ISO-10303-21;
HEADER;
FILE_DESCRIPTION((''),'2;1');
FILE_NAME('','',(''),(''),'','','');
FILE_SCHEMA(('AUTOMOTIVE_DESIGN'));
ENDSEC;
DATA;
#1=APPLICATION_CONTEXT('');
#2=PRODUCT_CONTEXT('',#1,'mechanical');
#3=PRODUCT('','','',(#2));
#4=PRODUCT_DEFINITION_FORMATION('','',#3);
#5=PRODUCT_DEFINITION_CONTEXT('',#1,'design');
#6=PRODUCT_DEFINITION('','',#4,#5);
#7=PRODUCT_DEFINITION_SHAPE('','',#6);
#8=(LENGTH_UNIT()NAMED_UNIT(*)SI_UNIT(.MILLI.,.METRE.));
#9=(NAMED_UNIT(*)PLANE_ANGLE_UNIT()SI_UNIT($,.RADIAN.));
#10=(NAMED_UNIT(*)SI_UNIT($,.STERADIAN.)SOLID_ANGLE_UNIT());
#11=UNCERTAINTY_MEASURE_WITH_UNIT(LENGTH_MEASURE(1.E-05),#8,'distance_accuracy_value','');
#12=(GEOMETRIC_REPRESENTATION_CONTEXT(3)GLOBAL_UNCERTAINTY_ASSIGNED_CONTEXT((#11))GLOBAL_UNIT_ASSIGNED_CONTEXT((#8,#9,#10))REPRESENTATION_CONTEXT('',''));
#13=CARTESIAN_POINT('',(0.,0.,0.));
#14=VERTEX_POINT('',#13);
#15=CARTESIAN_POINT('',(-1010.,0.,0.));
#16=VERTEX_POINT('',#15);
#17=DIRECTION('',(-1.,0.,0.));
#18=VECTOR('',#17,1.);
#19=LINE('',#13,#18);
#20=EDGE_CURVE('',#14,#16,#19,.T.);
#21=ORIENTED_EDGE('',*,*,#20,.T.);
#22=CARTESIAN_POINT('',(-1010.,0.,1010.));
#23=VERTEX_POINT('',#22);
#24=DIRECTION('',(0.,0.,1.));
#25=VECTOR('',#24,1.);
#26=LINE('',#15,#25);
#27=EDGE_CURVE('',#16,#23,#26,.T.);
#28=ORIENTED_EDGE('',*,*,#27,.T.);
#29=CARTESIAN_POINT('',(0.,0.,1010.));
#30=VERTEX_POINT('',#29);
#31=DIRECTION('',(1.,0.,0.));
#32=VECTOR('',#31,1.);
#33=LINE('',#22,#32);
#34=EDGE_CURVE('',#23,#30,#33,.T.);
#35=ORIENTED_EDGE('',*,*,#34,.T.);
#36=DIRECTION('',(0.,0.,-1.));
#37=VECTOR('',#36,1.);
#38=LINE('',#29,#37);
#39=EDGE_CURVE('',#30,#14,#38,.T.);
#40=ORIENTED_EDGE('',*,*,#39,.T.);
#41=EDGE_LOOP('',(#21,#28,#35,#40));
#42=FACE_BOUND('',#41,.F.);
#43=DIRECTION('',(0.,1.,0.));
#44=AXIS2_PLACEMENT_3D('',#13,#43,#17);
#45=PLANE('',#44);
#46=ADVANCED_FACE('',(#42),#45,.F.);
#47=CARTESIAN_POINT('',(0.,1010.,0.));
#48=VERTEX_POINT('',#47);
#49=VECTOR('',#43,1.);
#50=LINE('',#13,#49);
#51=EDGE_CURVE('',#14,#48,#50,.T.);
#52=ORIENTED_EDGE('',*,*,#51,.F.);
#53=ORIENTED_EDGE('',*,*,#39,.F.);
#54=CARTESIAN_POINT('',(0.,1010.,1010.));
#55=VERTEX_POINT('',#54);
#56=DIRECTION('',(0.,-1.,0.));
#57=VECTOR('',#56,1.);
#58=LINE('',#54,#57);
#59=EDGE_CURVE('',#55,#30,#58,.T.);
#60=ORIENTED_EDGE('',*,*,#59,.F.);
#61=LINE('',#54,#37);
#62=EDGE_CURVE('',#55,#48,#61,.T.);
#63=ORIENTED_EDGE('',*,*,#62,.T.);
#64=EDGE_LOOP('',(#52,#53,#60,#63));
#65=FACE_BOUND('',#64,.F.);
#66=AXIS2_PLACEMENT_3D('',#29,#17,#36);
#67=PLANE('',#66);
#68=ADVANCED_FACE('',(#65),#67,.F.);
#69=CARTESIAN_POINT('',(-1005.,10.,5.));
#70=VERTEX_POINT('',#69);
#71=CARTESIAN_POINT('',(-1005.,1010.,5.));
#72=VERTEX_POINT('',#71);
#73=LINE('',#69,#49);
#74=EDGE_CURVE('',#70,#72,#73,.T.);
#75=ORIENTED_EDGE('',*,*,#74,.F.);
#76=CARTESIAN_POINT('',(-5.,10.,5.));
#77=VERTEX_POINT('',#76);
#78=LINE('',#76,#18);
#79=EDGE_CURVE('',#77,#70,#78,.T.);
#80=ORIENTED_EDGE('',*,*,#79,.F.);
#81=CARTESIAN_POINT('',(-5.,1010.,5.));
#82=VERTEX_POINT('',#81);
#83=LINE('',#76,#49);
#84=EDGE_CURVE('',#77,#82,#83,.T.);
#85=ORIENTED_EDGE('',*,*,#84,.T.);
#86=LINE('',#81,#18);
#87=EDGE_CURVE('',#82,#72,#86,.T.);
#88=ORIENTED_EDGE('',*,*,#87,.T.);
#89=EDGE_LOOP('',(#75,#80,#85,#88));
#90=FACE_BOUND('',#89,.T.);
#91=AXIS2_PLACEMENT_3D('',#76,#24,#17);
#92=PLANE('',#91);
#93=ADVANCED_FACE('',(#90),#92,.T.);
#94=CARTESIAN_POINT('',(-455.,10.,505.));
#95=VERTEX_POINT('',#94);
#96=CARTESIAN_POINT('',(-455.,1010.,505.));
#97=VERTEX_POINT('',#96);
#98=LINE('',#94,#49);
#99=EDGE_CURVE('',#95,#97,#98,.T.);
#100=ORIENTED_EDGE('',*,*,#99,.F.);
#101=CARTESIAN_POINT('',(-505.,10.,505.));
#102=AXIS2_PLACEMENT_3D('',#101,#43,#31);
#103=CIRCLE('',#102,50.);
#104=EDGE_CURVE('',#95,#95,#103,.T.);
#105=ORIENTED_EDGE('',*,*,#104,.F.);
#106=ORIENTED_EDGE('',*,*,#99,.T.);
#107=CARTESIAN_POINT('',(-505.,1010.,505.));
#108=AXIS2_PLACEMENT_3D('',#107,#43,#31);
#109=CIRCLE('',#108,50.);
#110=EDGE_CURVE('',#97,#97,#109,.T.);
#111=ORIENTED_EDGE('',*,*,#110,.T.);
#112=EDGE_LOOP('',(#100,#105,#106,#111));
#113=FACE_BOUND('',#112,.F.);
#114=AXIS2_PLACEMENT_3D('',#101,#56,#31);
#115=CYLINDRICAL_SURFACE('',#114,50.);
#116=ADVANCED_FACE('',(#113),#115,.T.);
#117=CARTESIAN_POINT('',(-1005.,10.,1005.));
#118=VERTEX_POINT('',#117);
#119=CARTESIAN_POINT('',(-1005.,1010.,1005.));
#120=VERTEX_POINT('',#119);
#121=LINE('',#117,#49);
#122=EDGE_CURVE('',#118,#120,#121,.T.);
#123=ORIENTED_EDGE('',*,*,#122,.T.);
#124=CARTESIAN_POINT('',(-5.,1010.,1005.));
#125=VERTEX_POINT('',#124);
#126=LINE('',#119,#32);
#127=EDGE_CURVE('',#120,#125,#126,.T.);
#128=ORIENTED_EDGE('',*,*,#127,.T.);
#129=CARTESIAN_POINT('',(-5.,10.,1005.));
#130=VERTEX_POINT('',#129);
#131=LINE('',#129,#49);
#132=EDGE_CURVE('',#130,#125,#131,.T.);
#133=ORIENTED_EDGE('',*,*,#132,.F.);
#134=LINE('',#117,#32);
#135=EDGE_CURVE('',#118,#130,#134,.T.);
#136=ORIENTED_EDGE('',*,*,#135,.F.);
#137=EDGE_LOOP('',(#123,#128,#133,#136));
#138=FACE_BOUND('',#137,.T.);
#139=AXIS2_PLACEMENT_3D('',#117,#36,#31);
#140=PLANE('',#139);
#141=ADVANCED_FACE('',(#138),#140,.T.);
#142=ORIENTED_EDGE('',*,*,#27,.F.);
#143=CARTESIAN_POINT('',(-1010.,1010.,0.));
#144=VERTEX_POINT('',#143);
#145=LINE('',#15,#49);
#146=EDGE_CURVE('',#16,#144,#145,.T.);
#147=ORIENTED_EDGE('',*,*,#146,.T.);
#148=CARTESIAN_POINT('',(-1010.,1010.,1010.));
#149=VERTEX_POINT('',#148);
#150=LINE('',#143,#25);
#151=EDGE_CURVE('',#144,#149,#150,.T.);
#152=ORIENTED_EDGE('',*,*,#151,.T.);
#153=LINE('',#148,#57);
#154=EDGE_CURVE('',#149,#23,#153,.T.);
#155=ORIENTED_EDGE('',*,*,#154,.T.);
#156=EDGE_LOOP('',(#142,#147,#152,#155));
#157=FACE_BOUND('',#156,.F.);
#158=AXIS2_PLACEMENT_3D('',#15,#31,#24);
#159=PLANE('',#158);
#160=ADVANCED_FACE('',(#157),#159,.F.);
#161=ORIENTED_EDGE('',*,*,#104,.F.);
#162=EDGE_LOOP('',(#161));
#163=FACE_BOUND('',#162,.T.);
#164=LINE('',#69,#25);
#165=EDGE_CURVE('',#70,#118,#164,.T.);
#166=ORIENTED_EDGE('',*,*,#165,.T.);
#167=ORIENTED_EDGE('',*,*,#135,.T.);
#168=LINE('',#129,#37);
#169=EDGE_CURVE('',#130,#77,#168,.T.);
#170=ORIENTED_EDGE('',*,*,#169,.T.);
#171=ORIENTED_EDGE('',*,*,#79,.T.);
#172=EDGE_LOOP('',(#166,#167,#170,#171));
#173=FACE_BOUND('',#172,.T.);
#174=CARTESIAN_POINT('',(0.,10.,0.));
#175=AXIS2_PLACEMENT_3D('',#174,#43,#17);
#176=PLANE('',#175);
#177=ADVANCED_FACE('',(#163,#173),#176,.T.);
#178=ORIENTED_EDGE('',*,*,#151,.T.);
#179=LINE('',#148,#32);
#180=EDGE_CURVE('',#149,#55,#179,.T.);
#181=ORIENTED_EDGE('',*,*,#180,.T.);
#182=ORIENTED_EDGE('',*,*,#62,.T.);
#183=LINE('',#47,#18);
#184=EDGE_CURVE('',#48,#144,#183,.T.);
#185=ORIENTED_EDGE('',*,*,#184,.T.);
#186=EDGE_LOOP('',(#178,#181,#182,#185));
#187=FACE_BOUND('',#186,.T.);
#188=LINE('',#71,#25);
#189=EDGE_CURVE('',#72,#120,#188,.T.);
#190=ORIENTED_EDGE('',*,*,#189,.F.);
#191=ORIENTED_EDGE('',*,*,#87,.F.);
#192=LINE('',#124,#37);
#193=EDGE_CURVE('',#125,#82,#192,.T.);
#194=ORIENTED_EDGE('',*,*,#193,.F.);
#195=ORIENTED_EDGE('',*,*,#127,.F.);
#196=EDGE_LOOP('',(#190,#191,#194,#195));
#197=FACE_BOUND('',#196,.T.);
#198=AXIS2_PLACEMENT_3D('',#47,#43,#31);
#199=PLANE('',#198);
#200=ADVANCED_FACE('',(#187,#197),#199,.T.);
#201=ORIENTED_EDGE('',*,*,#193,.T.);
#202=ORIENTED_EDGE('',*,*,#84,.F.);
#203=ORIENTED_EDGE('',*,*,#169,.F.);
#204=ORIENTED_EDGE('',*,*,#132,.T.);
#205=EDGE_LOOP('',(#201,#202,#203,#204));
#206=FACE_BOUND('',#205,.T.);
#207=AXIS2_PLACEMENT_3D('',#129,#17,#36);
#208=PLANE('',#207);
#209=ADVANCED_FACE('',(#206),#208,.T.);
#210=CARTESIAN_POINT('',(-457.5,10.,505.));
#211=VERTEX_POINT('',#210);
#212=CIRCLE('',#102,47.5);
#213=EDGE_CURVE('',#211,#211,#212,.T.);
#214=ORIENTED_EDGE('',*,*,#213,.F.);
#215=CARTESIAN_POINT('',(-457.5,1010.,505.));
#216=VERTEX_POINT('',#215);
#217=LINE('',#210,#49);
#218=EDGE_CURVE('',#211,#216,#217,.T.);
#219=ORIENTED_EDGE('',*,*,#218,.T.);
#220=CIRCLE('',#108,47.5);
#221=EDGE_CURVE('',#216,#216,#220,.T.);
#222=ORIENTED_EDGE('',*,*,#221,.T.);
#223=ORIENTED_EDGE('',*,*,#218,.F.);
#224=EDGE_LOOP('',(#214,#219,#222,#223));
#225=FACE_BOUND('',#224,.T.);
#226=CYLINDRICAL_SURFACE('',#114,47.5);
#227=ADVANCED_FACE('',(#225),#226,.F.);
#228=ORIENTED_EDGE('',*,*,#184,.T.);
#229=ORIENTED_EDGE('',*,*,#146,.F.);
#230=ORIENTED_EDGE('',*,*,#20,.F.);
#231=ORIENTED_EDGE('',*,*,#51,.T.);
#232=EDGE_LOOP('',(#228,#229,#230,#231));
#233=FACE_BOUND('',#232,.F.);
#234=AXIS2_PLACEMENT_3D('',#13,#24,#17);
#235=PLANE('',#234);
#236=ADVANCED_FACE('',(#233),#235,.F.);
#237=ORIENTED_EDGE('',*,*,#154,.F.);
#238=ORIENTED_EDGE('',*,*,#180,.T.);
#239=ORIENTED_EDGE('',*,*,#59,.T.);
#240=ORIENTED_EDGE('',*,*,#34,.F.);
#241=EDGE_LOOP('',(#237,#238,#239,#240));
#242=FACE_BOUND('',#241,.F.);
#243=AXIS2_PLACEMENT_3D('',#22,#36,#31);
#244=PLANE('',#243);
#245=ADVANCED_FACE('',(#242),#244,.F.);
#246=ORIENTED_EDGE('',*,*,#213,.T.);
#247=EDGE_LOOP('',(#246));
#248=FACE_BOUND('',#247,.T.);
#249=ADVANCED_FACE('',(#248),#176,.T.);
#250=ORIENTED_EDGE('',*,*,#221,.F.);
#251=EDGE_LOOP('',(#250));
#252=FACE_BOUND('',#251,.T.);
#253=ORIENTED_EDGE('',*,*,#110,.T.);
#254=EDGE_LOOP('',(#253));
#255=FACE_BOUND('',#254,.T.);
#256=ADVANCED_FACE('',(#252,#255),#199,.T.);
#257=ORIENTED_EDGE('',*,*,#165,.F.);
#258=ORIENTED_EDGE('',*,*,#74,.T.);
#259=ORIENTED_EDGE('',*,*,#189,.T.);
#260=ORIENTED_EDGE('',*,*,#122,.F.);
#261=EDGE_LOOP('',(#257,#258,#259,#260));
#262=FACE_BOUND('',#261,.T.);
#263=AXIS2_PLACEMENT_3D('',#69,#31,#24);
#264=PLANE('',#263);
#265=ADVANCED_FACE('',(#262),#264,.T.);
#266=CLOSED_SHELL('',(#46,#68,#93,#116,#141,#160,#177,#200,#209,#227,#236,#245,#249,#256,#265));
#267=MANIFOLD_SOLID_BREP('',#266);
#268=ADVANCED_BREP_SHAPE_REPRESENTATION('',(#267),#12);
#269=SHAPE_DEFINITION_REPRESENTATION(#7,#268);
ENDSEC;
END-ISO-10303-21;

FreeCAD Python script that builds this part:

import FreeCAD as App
import Part
import Sketcher

V = App.Vector

doc = App.newDocument("Part")
body = doc.addObject("PartDesign::Body", "Body")

# Sketch on XZ plane
sketch1 = body.newObject("Sketcher::SketchObject", "Sketch")
sketch1.AttachmentSupport = (doc.getObject("XZ_Plane"), [""])
sketch1.MapMode = "FlatFace"
sketch1.addGeometry(Part.LineSegment(V(0, 1010, 0), V(0, 0, 0)), False)
sketch1.addGeometry(Part.LineSegment(V(0, 0, 0), V(-1010, 0, 0)), False)
sketch1.addGeometry(Part.LineSegment(V(-1010, 0, 0), V(-1010, 1010, 0)), False)
sketch1.addGeometry(Part.LineSegment(V(-1010, 1010, 0), V(0, 1010, 0)), False)
sketch1.addConstraint(Sketcher.Constraint("Coincident", 0, 2, 1, 1))
sketch1.addConstraint(Sketcher.Constraint("Coincident", 1, 2, 2, 1))
sketch1.addConstraint(Sketcher.Constraint("Coincident", 2, 2, 3, 1))
sketch1.addConstraint(Sketcher.Constraint("Coincident", 3, 2, 0, 1))
sketch1.addConstraint(Sketcher.Constraint("Vertical", 0))
sketch1.addConstraint(Sketcher.Constraint("Horizontal", 1))
sketch1.addConstraint(Sketcher.Constraint("Vertical", 2))
sketch1.addConstraint(Sketcher.Constraint("Horizontal", 3))
sketch1.addConstraint(Sketcher.Constraint("Coincident", 0, 2, -1, 1))
sketch1.addConstraint(Sketcher.Constraint("Equal", 3, 0))
sketch1.addConstraint(Sketcher.Constraint("DistanceX", 1, 2, 1, 1, 1010.0))
pad1 = body.newObject("PartDesign::Pad", "Pad")
pad1.Profile = sketch1
pad1.Length = 10
pad1.Reversed = True

# Sketch on XZ plane
sketch2 = body.newObject("Sketcher::SketchObject", "Sketch001")
sketch2.AttachmentSupport = (doc.getObject("XZ_Plane"), [""])
sketch2.MapMode = "FlatFace"
sketch2.AttachmentOffset = App.Placement(V(0, 0, -10), App.Rotation())
sketch2.addGeometry(Part.LineSegment(V(0, 0, 0), V(-1010, 0, 0)), False)
sketch2.addGeometry(Part.LineSegment(V(-1010, 0, 0), V(-1010, 1010, 0)), False)
sketch2.addGeometry(Part.LineSegment(V(-1010, 1010, 0), V(0, 1010, 0)), False)
sketch2.addGeometry(Part.LineSegment(V(0, 1010, 0), V(0, 0, 0)), False)
sketch2.addGeometry(Part.LineSegment(V(-5, 1005, 0), V(-1005, 1005, 0)), False)
sketch2.addGeometry(Part.LineSegment(V(-1005, 1005, 0), V(-1005, 5, 0)), False)
sketch2.addGeometry(Part.LineSegment(V(-1005, 5, 0), V(-5, 5, 0)), False)
sketch2.addGeometry(Part.LineSegment(V(-5, 5, 0), V(-5, 1005, 0)), False)
sketch2.addConstraint(Sketcher.Constraint("Coincident", 0, 2, 1, 1))
sketch2.addConstraint(Sketcher.Constraint("Coincident", 1, 2, 2, 1))
sketch2.addConstraint(Sketcher.Constraint("Coincident", 2, 2, 3, 1))
sketch2.addConstraint(Sketcher.Constraint("Coincident", 3, 2, 0, 1))
sketch2.addConstraint(Sketcher.Constraint("Coincident", 4, 2, 5, 1))
sketch2.addConstraint(Sketcher.Constraint("Coincident", 5, 2, 6, 1))
sketch2.addConstraint(Sketcher.Constraint("Coincident", 6, 2, 7, 1))
sketch2.addConstraint(Sketcher.Constraint("Coincident", 7, 2, 4, 1))
sketch2.addConstraint(Sketcher.Constraint("Horizontal", 0))
sketch2.addConstraint(Sketcher.Constraint("Vertical", 1))
sketch2.addConstraint(Sketcher.Constraint("Horizontal", 2))
sketch2.addConstraint(Sketcher.Constraint("Vertical", 3))
sketch2.addConstraint(Sketcher.Constraint("Horizontal", 4))
sketch2.addConstraint(Sketcher.Constraint("Vertical", 5))
sketch2.addConstraint(Sketcher.Constraint("Horizontal", 6))
sketch2.addConstraint(Sketcher.Constraint("Vertical", 7))
sketch2.addConstraint(Sketcher.Constraint("Coincident", 3, 2, -1, 1))
sketch2.addConstraint(Sketcher.Constraint("Equal", 2, 1))
sketch2.addConstraint(Sketcher.Constraint("Equal", 6, 5))
sketch2.addConstraint(Sketcher.Constraint("DistanceX", 4, 2, 4, 1, 1000.0))
sketch2.addConstraint(Sketcher.Constraint("DistanceY", -1, 1, 5, 2, 5.0))
sketch2.addConstraint(Sketcher.Constraint("DistanceX", 6, 2, -1, 1, 5.0))
sketch2.addConstraint(Sketcher.Constraint("DistanceX", 1, 2, 4, 2, 5.0))
pad2 = body.newObject("PartDesign::Pad", "Pad001")
pad2.Profile = sketch2
pad2.Length = 1000
pad2.Reversed = True

# Sketch on XZ plane
sketch3 = body.newObject("Sketcher::SketchObject", "Sketch002")
sketch3.AttachmentSupport = (doc.getObject("XZ_Plane"), [""])
sketch3.MapMode = "FlatFace"
sketch3.AttachmentOffset = App.Placement(V(0, 0, -10), App.Rotation())
sketch3.addGeometry(Part.Circle(V(-505, 505, 0), V(0, 0, 1), 50), False)
sketch3.addGeometry(Part.Circle(V(-505, 505, 0), V(0, 0, 1), 48), False)
sketch3.addConstraint(Sketcher.Constraint("Coincident", 1, 3, 0, 3))
sketch3.addConstraint(Sketcher.Constraint("Diameter", 0, 100.0))
sketch3.addConstraint(Sketcher.Constraint("Diameter", 1, 95.0))
sketch3.addConstraint(Sketcher.Constraint("DistanceX", 0, 3, -1, 1, 505.0))
sketch3.addConstraint(Sketcher.Constraint("DistanceY", -1, 1, 0, 3, 505.0))
pad3 = body.newObject("PartDesign::Pad", "Pad002")
pad3.Profile = sketch3
pad3.Length = 1000
pad3.Reversed = True

doc.recompute()
